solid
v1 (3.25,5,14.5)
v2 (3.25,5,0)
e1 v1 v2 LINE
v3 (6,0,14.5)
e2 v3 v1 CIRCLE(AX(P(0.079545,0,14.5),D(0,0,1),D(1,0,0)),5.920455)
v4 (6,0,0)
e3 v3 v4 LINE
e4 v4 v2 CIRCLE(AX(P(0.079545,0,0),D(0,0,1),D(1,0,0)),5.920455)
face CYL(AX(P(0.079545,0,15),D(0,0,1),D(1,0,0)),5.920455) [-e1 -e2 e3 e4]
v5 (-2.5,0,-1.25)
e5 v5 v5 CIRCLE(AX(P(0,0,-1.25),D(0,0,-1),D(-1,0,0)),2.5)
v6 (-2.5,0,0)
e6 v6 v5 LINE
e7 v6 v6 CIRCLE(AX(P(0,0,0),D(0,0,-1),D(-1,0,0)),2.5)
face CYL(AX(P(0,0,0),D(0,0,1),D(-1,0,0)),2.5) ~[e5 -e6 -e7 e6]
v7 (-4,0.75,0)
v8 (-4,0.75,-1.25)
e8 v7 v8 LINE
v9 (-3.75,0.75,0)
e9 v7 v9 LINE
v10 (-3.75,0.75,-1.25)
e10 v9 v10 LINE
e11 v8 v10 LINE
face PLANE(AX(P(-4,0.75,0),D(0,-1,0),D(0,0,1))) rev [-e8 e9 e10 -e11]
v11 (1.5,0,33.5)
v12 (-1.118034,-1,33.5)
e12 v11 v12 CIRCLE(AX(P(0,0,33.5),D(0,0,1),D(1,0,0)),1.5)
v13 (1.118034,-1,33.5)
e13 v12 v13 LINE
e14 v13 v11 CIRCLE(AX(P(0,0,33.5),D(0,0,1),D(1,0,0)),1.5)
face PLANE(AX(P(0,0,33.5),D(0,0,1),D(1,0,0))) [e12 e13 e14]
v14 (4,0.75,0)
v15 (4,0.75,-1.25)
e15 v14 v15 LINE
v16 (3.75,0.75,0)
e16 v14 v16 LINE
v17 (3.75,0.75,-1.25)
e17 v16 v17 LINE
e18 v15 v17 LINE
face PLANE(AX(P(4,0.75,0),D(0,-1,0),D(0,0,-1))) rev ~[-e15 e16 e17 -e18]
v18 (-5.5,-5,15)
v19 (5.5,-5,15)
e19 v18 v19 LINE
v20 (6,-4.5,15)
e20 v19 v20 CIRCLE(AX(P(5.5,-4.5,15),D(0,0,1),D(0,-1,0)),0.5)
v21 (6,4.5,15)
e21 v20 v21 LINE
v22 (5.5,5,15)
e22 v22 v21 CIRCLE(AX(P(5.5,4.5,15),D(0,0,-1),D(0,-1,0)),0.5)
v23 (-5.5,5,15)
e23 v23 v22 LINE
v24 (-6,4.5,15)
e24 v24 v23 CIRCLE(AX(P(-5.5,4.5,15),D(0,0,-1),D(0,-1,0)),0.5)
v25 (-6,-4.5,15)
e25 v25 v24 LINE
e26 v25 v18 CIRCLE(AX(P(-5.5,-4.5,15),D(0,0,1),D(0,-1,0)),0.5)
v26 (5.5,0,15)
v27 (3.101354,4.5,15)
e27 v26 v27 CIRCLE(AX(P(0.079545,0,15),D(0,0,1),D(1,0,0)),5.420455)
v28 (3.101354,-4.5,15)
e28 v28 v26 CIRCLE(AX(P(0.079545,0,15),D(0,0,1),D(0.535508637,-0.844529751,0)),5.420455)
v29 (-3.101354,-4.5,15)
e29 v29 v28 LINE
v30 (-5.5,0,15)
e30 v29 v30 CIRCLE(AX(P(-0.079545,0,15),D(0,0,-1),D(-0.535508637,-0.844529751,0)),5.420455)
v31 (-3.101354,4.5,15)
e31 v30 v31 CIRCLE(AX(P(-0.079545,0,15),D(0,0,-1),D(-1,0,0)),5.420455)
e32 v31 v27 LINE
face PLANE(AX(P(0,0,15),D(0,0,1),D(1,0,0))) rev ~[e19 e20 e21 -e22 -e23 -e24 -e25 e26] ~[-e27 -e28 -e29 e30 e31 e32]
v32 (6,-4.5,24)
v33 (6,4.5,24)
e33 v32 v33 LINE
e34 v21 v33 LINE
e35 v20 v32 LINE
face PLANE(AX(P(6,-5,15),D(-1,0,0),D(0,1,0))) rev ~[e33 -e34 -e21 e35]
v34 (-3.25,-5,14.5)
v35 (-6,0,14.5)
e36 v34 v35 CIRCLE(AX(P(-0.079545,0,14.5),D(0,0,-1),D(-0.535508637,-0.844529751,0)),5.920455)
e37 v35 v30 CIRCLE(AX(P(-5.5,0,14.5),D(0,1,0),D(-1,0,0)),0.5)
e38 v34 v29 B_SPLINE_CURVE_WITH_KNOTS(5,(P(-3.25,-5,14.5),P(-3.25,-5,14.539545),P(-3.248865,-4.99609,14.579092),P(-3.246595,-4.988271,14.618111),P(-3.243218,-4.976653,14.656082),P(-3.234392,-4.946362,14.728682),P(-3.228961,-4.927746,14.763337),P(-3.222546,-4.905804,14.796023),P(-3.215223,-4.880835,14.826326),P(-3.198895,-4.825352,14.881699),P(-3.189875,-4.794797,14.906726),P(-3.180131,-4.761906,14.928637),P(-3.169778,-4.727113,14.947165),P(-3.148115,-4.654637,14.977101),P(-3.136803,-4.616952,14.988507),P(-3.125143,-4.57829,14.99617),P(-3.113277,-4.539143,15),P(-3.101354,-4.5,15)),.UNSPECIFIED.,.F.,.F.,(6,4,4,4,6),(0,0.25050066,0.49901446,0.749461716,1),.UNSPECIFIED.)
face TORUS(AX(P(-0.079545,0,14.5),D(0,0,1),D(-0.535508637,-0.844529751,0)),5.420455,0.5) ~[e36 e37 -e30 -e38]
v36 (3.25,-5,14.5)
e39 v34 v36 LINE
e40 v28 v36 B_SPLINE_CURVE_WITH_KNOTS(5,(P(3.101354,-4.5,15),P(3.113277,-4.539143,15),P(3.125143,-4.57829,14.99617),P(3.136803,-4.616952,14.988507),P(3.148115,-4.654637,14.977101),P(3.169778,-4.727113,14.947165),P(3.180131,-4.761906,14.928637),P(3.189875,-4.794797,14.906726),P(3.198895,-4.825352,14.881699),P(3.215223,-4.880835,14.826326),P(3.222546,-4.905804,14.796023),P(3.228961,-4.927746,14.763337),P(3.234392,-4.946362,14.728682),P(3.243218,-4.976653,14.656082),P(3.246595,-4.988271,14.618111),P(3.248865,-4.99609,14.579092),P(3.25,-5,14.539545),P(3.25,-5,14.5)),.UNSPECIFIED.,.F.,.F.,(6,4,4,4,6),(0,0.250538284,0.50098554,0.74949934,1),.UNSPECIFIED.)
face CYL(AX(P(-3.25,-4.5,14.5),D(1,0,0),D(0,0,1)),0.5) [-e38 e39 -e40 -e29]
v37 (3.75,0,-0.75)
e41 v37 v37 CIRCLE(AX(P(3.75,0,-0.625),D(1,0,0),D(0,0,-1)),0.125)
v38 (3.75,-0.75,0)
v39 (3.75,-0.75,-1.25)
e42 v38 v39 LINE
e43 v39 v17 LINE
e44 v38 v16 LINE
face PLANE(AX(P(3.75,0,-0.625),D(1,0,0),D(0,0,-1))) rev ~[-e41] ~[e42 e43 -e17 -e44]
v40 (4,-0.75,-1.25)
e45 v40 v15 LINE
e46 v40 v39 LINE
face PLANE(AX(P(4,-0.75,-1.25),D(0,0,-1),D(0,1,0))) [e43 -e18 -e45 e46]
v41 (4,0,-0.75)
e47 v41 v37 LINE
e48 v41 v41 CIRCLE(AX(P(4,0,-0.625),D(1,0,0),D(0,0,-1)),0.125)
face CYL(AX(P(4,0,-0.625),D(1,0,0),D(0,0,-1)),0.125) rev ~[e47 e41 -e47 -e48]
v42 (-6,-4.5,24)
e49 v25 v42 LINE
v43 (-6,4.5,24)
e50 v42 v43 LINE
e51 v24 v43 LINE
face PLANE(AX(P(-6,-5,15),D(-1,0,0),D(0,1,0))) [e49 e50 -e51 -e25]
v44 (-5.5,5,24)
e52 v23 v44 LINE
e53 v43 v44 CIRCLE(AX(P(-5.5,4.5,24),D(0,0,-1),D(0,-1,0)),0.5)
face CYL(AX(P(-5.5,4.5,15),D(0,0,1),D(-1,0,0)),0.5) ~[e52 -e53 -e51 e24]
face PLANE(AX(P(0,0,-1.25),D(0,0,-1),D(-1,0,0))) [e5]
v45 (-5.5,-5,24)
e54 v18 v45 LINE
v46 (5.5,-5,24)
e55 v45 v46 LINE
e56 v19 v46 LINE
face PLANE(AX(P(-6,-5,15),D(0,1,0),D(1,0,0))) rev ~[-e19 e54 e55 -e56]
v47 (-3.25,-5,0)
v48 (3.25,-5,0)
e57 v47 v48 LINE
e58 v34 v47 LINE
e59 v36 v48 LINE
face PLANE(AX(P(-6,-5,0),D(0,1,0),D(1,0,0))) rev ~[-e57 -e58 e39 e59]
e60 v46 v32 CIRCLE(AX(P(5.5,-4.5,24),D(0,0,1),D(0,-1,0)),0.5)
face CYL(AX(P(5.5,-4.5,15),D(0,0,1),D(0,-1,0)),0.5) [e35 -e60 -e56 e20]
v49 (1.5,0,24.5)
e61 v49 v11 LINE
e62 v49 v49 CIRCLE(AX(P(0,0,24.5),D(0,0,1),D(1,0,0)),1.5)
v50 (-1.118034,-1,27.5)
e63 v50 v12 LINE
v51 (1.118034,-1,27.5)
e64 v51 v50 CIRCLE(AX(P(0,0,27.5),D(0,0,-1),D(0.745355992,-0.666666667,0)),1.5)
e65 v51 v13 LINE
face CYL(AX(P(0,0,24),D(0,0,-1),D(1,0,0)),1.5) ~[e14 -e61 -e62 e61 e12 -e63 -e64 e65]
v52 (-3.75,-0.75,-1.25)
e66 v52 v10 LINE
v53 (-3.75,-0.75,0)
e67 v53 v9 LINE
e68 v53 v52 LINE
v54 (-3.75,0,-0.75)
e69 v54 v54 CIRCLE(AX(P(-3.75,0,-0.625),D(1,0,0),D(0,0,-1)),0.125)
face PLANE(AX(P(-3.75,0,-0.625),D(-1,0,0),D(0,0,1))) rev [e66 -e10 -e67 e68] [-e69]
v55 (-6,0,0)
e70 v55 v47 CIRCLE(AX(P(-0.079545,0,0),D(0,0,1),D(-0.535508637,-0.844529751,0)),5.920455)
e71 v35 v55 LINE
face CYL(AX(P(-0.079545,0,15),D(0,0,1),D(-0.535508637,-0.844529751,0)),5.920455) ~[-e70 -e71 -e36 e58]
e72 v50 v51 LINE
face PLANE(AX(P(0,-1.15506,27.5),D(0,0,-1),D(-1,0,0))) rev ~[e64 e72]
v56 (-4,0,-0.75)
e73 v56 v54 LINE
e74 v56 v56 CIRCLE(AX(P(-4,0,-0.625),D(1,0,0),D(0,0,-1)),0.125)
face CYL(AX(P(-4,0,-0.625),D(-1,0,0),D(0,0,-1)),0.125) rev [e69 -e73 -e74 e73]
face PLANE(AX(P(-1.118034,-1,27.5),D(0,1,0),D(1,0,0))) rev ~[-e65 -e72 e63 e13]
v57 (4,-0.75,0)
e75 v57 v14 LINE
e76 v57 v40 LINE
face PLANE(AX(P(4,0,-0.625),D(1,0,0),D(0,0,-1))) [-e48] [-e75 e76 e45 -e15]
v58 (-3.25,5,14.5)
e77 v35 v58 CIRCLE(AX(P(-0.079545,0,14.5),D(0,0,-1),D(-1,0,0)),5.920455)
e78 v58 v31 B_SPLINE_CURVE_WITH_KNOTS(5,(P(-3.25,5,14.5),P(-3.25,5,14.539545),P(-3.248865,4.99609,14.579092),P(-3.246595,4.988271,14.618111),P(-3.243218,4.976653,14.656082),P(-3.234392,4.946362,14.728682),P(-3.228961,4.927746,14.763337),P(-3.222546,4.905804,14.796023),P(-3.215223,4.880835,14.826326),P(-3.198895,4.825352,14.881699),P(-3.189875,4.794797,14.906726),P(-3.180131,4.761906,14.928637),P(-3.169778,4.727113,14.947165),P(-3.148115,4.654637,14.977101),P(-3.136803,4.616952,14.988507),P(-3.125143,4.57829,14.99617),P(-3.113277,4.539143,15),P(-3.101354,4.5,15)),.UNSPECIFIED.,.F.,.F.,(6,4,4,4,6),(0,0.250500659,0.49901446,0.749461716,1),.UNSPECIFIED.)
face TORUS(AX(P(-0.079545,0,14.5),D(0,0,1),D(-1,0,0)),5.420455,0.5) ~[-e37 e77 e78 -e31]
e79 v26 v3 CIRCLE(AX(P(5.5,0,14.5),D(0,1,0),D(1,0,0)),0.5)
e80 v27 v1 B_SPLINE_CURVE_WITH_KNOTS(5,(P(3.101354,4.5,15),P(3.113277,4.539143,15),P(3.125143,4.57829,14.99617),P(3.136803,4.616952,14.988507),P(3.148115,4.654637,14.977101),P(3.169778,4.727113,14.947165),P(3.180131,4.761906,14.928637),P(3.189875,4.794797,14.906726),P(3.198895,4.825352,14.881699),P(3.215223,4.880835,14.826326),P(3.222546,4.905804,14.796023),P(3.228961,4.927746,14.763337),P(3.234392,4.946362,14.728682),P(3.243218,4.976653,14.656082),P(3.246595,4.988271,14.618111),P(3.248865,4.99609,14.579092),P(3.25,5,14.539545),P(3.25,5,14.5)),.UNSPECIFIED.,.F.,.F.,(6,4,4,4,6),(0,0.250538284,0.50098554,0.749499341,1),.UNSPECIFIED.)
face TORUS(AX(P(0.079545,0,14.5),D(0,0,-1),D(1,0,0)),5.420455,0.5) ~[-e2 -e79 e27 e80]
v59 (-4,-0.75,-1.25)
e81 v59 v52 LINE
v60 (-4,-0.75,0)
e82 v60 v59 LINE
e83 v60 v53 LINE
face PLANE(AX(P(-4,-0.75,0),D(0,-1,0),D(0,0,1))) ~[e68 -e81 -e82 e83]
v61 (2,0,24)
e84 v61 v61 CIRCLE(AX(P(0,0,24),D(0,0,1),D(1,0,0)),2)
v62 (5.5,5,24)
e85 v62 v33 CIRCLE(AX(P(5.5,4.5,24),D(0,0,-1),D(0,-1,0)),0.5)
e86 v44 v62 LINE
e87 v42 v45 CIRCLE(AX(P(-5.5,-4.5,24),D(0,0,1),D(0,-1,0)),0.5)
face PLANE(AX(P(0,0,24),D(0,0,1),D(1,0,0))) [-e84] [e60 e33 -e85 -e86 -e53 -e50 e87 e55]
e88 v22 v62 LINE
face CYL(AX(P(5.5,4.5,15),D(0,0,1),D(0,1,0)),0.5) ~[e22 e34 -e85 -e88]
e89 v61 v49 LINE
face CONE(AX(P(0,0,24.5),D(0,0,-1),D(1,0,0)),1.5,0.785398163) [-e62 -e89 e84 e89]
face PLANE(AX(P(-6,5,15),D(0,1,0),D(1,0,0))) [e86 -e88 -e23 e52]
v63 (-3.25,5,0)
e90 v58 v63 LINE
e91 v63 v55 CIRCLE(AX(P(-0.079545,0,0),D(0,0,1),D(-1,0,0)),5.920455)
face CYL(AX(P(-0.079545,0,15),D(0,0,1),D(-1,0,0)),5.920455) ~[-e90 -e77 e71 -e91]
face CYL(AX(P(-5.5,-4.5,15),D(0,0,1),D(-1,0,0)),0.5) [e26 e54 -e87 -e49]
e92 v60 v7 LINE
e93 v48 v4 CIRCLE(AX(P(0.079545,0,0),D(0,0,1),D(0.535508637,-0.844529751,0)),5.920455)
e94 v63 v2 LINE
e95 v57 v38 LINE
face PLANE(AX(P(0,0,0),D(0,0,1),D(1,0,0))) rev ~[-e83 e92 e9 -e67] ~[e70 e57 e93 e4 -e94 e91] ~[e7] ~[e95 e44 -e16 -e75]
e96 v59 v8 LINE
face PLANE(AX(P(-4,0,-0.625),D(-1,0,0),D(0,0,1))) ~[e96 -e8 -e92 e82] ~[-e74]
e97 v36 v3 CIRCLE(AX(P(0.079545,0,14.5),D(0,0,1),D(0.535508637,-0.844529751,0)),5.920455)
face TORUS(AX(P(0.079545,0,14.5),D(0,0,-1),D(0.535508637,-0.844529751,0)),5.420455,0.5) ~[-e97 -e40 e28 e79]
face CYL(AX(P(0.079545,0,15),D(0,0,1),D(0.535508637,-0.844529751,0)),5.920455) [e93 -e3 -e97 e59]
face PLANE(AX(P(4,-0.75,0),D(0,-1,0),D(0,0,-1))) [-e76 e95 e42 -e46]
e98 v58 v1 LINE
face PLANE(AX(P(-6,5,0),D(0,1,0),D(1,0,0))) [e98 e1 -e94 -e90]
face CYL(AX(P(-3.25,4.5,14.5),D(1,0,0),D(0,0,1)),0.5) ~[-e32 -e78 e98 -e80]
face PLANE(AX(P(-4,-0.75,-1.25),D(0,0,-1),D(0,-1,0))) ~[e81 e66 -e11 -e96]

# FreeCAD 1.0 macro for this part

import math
import FreeCAD as App
import Part
import Sketcher

V = App.Vector


def edges_at(feature, points):
    """Names of the edges that pass closest to the given points."""
    edges = feature.Shape.Edges
    near = lambda p: min(range(len(edges)), key=lambda i: edges[i].distToShape(Part.Vertex(*p))[0])
    return sorted({f"Edge{near(p) + 1}" for p in points})

doc = App.newDocument("Part")
body = doc.addObject("PartDesign::Body", "Body")

sketch1 = body.newObject("Sketcher::SketchObject", "Sketch")
sketch1.AttachmentSupport = (doc.getObject("XY_Plane"), [""])
sketch1.MapMode = "FlatFace"
sketch1.addGeometry([
    Part.LineSegment(V(-6, 5, 0), V(-6, -5, 0)),
    Part.LineSegment(V(-6, -5, 0), V(6, -5, 0)),
    Part.LineSegment(V(6, -5, 0), V(6, 5, 0)),
    Part.LineSegment(V(6, 5, 0), V(-6, 5, 0)),
], False)
sketch1.addConstraint([
    Sketcher.Constraint("Coincident", 0, 2, 1, 1),
    Sketcher.Constraint("Coincident", 1, 2, 2, 1),
    Sketcher.Constraint("Coincident", 2, 2, 3, 1),
    Sketcher.Constraint("Coincident", 3, 2, 0, 1),
    Sketcher.Constraint("Vertical", 0),
    Sketcher.Constraint("Horizontal", 1),
    Sketcher.Constraint("Vertical", 2),
    Sketcher.Constraint("Horizontal", 3),
    Sketcher.Constraint("Symmetric", 0, 2, 2, 2, -1, 1),
    Sketcher.Constraint("DistanceX", 1, 1, 1, 2, 12.0),
    Sketcher.Constraint("DistanceY", 0, 2, 0, 1, 10.0),
])
pad1 = body.newObject("PartDesign::Pad", "Pad")
pad1.Profile = sketch1
pad1.Length = 15

sketch2 = body.newObject("Sketcher::SketchObject", "Sketch001")
sketch2.AttachmentSupport = (doc.getObject("XY_Plane"), [""])
sketch2.MapMode = "FlatFace"
sketch2.AttachmentOffset = App.Placement(V(0, 0, 15), App.Rotation())
sketch2.addGeometry([
    Part.ArcOfCircle(Part.Circle(V(-0.079545, 0, 0), V(0, 0, 1), 5.920455), math.radians(122.378412), math.radians(180)),
    Part.LineSegment(V(-3.25, 5, 0), V(-6, 5, 0)),
    Part.LineSegment(V(-6, 5, 0), V(-6, 0, 0)),
    Part.ArcOfCircle(Part.Circle(V(-0.079545, 0, 0), V(0, 0, 1), 5.920455), math.radians(180), math.radians(237.621588)),
    Part.LineSegment(V(-6, 0, 0), V(-6, -5, 0)),
    Part.LineSegment(V(-6, -5, 0), V(-3.25, -5, 0)),
], False)
sketch2.addConstraint([
    Sketcher.Constraint("Coincident", 0, 1, 1, 1),
    Sketcher.Constraint("Coincident", 1, 2, 2, 1),
    Sketcher.Constraint("Tangent", 2, 2, 0, 2),
    Sketcher.Constraint("Tangent", 3, 1, 4, 1),
    Sketcher.Constraint("Coincident", 4, 2, 5, 1),
    Sketcher.Constraint("Coincident", 5, 2, 3, 2),
    Sketcher.Constraint("Horizontal", 1),
    Sketcher.Constraint("Vertical", 2),
    Sketcher.Constraint("Vertical", 4),
    Sketcher.Constraint("Horizontal", 5),
    Sketcher.Constraint("Coincident", 3, 3, 0, 3),
    Sketcher.Constraint("Equal", 0, 3),
    Sketcher.Constraint("Symmetric", 0, 1, 5, 2, -1),
    Sketcher.Constraint("DistanceY", 2, 2, 2, 1, 5.0),
    Sketcher.Constraint("DistanceX", 1, 2, -1, 1, 6.0),
    Sketcher.Constraint("DistanceX", 1, 2, 1, 1, 2.75),
])
pocket1 = body.newObject("PartDesign::Pocket", "Pocket")
pocket1.Profile = sketch2
pocket1.Type = "ThroughAll"
doc.recompute()

mirrored = body.newObject("PartDesign::Mirrored", "Mirrored")
mirrored.Originals = [pocket1]
mirrored.MirrorPlane = (doc.getObject("YZ_Plane"), [""])
body.Tip = mirrored

sketch3 = body.newObject("Sketcher::SketchObject", "Sketch002")
sketch3.AttachmentSupport = (doc.getObject("XY_Plane"), [""])
sketch3.MapMode = "FlatFace"
sketch3.addGeometry(Part.Circle(V(0, 0, 0), V(0, 0, 1), 2.5), False)
sketch3.addConstraint([
    Sketcher.Constraint("Coincident", 0, 3, -1, 1),
    Sketcher.Constraint("Diameter", 0, 5.0),
])
pad2 = body.newObject("PartDesign::Pad", "Pad001")
pad2.Profile = sketch3
pad2.Length = 1.25
pad2.Reversed = True

sketch4 = body.newObject("Sketcher::SketchObject", "Sketch003")
sketch4.AttachmentSupport = (doc.getObject("YZ_Plane"), [""])
sketch4.MapMode = "FlatFace"
sketch4.AttachmentOffset = App.Placement(V(0, 0, 4), App.Rotation())
sketch4.addGeometry([
    Part.LineSegment(V(0.75, 0, 0), V(-0.75, 0, 0)),
    Part.LineSegment(V(-0.75, 0, 0), V(-0.75, -1.25, 0)),
    Part.LineSegment(V(-0.75, -1.25, 0), V(0.75, -1.25, 0)),
    Part.LineSegment(V(0.75, -1.25, 0), V(0.75, 0, 0)),
    Part.Circle(V(0, -0.625, 0), V(0, 0, 1), 0.125),
], False)
sketch4.addConstraint([
    Sketcher.Constraint("Coincident", 0, 2, 1, 1),
    Sketcher.Constraint("Coincident", 1, 2, 2, 1),
    Sketcher.Constraint("Coincident", 2, 2, 3, 1),
    Sketcher.Constraint("Coincident", 3, 2, 0, 1),
    Sketcher.Constraint("Horizontal", 0),
    Sketcher.Constraint("Vertical", 1),
    Sketcher.Constraint("Horizontal", 2),
    Sketcher.Constraint("Vertical", 3),
    Sketcher.Constraint("Symmetric", 0, 2, 3, 2, -1, 1),
    Sketcher.Constraint("PointOnObject", 4, 3, -2),
    Sketcher.Constraint("Diameter", 4, 0.25),
    Sketcher.Constraint("DistanceX", 0, 2, 0, 1, 1.5),
    Sketcher.Constraint("DistanceY", 1, 2, 1, 1, 1.25),
    Sketcher.Constraint("DistanceY", 4, 3, -1, 1, 0.625),
])
pad3 = body.newObject("PartDesign::Pad", "Pad002")
pad3.Profile = sketch4
pad3.Length = 0.25
pad3.Reversed = True
doc.recompute()

mirrored2 = body.newObject("PartDesign::Mirrored", "Mirrored001")
mirrored2.Originals = [pad3]
mirrored2.MirrorPlane = (doc.getObject("YZ_Plane"), [""])
body.Tip = mirrored2
doc.recompute()

fillet = body.newObject("PartDesign::Fillet", "Fillet")
fillet.Base = (mirrored2, edges_at(mirrored2, [
    (-5.267, 2.853, 15),
    (0, -5, 15),
    (0, 5, 15),
    (5.267, 2.853, 15),
]))
fillet.Radius = 0.5

sketch5 = body.newObject("Sketcher::SketchObject", "Sketch004")
sketch5.AttachmentSupport = (doc.getObject("XY_Plane"), [""])
sketch5.MapMode = "FlatFace"
sketch5.AttachmentOffset = App.Placement(V(0, 0, 15), App.Rotation())
sketch5.addGeometry([
    Part.LineSegment(V(-6, 5, 0), V(-6, -5, 0)),
    Part.LineSegment(V(-6, -5, 0), V(6, -5, 0)),
    Part.LineSegment(V(6, -5, 0), V(6, 5, 0)),
    Part.LineSegment(V(6, 5, 0), V(-6, 5, 0)),
], False)
sketch5.addConstraint([
    Sketcher.Constraint("Coincident", 0, 2, 1, 1),
    Sketcher.Constraint("Coincident", 1, 2, 2, 1),
    Sketcher.Constraint("Coincident", 2, 2, 3, 1),
    Sketcher.Constraint("Coincident", 3, 2, 0, 1),
    Sketcher.Constraint("Vertical", 0),
    Sketcher.Constraint("Horizontal", 1),
    Sketcher.Constraint("Vertical", 2),
    Sketcher.Constraint("Horizontal", 3),
    Sketcher.Constraint("Symmetric", 0, 2, 2, 2, -1, 1),
    Sketcher.Constraint("DistanceX", 1, 1, 1, 2, 12.0),
    Sketcher.Constraint("DistanceY", 0, 2, 0, 1, 10.0),
])
pad4 = body.newObject("PartDesign::Pad", "Pad003")
pad4.Profile = sketch5
pad4.Length = 9
doc.recompute()

fillet2 = body.newObject("PartDesign::Fillet", "Fillet001")
fillet2.Base = (pad4, edges_at(pad4, [
    (6, 5, 19.5),
    (-6, 5, 19.5),
    (-6, -5, 19.5),
    (6, -5, 19.5),
]))
fillet2.Radius = 0.5

sketch6 = body.newObject("Sketcher::SketchObject", "Sketch005")
sketch6.AttachmentSupport = (doc.getObject("XY_Plane"), [""])
sketch6.MapMode = "FlatFace"
sketch6.AttachmentOffset = App.Placement(V(0, 0, 24), App.Rotation())
sketch6.addGeometry(Part.Circle(V(0, 0, 0), V(0, 0, 1), 1.5), False)
sketch6.addConstraint([
    Sketcher.Constraint("Coincident", 0, 3, -1, 1),
    Sketcher.Constraint("Diameter", 0, 3.0),
])
pad5 = body.newObject("PartDesign::Pad", "Pad004")
pad5.Profile = sketch6
pad5.Length = 9.5
doc.recompute()

chamfer = body.newObject("PartDesign::Chamfer", "Chamfer")
chamfer.Base = (pad5, edges_at(pad5, [(-1.5, 0, 24)]))
chamfer.Size = 0.5

sketch7 = body.newObject("Sketcher::SketchObject", "Sketch006")
sketch7.AttachmentSupport = (doc.getObject("XY_Plane"), [""])
sketch7.MapMode = "FlatFace"
sketch7.AttachmentOffset = App.Placement(V(0, 0, 27.5), App.Rotation())
sketch7.addGeometry([
    Part.LineSegment(V(1.118034, -1, 0), V(-1.118034, -1, 0)),
    Part.ArcOfCircle(Part.Circle(V(0, 0, 0), V(0, 0, 1), 1.5), math.radians(-138.189685), math.radians(-41.810315)),
], False)
sketch7.addConstraint([
    Sketcher.Constraint("Coincident", 0, 1, 1, 2),
    Sketcher.Constraint("Coincident", 1, 1, 0, 2),
    Sketcher.Constraint("Horizontal", 0),
    Sketcher.Constraint("Coincident", 1, 3, -1, 1),
    Sketcher.Constraint("Radius", 1, 1.5),
    Sketcher.Constraint("DistanceY", 0, 1, -1, 1, 1.0),
])
pocket2 = body.newObject("PartDesign::Pocket", "Pocket001")
pocket2.Profile = sketch7
pocket2.Length = 6
pocket2.Reversed = True

doc.recompute()
